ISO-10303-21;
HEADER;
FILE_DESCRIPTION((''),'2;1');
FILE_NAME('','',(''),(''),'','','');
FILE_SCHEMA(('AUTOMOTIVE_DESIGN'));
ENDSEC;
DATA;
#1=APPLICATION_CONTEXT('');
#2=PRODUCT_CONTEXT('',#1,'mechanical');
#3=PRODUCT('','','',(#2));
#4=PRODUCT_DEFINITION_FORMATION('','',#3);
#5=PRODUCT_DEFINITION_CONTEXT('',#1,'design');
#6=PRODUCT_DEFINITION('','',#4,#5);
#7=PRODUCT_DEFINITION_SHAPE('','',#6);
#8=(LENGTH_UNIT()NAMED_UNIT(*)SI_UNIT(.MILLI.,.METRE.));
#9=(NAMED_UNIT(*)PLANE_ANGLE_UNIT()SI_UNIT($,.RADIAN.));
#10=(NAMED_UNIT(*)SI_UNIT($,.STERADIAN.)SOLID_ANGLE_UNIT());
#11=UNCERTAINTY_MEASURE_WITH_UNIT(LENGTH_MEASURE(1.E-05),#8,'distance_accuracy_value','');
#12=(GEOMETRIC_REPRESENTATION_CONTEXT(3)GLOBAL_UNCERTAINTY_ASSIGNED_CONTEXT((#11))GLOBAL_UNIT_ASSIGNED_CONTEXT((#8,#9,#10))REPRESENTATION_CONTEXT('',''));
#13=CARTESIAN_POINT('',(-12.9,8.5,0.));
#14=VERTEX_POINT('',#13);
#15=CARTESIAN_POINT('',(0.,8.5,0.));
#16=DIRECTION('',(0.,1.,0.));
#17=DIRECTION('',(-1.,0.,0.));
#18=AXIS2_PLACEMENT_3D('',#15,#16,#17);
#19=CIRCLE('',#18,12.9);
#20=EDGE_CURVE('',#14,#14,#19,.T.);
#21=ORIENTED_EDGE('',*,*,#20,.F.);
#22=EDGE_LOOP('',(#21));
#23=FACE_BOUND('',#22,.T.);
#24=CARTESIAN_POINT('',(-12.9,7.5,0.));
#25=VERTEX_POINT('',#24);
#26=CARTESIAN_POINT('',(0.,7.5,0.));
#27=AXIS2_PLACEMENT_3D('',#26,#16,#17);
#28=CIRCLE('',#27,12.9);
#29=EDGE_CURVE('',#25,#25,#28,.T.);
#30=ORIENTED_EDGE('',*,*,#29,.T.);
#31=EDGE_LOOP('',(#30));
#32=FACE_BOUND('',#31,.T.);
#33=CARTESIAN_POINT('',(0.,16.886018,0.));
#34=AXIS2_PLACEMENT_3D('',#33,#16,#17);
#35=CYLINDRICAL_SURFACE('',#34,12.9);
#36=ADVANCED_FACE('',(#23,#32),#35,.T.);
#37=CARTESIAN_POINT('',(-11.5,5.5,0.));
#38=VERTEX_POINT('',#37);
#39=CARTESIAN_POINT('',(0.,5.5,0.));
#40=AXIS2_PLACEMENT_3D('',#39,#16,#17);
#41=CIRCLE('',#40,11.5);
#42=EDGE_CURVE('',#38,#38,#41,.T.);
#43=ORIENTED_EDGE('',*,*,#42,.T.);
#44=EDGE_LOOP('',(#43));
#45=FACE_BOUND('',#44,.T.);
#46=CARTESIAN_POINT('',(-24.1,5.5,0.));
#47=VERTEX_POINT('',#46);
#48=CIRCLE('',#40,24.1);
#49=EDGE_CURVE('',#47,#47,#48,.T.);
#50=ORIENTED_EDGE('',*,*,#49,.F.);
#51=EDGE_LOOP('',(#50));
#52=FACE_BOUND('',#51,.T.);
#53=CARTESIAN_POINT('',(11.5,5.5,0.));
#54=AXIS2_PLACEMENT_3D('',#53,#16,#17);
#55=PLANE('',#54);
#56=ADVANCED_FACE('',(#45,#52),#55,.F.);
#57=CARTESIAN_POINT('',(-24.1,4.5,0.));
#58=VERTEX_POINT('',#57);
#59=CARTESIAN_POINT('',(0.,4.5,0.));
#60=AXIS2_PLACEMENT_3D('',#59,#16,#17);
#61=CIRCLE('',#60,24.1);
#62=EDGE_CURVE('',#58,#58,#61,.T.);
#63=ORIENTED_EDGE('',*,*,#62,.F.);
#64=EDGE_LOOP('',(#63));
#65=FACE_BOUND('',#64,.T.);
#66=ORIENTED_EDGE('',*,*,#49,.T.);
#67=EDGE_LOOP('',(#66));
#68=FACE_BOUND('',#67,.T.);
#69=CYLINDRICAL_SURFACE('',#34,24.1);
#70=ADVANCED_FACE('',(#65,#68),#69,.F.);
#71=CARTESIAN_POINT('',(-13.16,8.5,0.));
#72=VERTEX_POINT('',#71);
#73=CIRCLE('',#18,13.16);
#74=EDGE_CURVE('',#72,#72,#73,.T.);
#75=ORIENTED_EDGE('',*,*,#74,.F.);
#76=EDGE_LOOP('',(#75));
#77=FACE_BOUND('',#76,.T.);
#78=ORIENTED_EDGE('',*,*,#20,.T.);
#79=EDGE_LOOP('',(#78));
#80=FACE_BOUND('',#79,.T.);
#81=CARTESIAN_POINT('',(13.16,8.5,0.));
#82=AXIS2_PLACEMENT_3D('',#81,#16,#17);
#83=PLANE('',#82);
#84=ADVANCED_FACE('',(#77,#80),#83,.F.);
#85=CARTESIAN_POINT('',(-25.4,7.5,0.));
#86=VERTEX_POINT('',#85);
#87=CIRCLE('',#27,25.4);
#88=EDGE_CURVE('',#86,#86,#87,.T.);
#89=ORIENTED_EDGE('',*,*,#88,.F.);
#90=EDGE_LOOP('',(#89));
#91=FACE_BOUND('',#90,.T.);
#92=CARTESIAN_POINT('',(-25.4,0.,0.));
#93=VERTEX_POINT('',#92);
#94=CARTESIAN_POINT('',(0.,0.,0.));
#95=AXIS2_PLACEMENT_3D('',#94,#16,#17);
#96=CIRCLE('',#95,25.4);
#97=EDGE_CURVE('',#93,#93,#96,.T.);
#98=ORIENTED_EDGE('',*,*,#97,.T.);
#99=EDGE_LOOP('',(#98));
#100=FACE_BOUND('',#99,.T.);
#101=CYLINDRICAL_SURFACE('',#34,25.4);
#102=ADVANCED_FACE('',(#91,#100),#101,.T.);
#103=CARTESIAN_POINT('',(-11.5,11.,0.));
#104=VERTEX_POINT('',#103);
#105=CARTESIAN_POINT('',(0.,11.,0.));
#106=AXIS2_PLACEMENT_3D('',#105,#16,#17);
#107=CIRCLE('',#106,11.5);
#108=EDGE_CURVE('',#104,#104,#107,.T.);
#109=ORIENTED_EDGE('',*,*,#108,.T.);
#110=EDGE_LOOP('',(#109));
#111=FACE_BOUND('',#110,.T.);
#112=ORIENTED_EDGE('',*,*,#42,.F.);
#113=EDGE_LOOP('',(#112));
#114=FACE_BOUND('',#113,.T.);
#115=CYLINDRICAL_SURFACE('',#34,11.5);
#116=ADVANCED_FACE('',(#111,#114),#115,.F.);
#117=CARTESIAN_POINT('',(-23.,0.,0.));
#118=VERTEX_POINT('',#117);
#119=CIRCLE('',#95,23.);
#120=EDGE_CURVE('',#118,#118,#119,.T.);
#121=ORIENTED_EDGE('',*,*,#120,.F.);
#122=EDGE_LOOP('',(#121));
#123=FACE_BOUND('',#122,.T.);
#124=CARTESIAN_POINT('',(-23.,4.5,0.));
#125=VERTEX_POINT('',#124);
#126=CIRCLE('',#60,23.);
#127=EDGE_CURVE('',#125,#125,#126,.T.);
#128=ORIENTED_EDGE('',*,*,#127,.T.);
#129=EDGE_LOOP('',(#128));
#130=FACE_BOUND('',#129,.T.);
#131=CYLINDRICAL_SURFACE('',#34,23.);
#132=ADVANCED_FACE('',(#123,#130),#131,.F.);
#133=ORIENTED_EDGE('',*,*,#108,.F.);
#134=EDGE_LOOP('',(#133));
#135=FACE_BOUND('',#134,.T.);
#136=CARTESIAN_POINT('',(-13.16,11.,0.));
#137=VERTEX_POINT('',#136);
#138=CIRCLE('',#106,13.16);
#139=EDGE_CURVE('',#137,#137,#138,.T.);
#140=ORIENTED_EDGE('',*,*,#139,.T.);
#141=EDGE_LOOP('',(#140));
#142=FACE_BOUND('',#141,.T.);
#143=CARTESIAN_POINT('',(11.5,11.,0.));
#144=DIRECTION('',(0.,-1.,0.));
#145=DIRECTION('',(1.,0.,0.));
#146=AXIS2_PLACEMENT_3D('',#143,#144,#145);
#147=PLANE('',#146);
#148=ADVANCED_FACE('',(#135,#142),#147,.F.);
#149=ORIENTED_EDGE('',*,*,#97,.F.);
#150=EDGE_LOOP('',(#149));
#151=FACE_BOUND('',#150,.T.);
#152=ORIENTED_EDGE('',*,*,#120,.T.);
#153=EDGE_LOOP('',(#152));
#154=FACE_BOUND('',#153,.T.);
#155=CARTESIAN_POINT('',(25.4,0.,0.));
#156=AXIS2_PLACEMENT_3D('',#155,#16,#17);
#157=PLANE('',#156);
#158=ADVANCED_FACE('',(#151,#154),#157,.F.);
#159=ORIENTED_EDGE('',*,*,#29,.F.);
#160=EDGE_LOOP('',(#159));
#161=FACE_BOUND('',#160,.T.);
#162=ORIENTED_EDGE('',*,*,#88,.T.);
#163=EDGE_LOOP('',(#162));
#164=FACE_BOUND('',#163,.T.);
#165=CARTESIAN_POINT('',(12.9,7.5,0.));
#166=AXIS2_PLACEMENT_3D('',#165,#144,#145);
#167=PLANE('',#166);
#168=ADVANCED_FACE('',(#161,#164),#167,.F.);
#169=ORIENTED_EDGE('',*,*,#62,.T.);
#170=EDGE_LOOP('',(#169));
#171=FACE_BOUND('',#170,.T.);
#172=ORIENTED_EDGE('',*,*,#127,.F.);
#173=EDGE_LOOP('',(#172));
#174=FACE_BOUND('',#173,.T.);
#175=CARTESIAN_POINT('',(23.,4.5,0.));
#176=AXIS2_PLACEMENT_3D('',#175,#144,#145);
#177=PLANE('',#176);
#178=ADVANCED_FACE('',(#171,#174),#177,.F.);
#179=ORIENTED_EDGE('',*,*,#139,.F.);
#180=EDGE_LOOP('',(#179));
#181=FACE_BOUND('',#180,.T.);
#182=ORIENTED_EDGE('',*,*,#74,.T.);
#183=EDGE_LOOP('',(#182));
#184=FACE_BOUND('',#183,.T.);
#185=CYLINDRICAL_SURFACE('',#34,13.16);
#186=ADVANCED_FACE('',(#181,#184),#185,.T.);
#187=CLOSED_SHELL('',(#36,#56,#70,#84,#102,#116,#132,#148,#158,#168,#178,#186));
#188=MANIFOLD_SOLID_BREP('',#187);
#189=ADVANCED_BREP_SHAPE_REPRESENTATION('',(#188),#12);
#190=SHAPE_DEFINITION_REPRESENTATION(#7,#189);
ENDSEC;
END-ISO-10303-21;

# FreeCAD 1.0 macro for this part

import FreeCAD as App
import Part
import Sketcher
from FreeCAD import Vector

doc = App.newDocument("Part")
body = doc.addObject("PartDesign::Body", "Body")

sketch1 = body.newObject("Sketcher::SketchObject", "Sketch")
sketch1.AttachmentSupport = (doc.getObject("XY_Plane"), [""])
sketch1.MapMode = "FlatFace"
sketch1.addGeometry(Part.LineSegment(Vector(23, 4.5, 0), Vector(23, 0, 0)), False)
sketch1.addGeometry(Part.LineSegment(Vector(23, 0, 0), Vector(25.4, 0, 0)), False)
sketch1.addGeometry(Part.LineSegment(Vector(25.4, 0, 0), Vector(25.4, 7.5, 0)), False)
sketch1.addGeometry(Part.LineSegment(Vector(25.4, 7.5, 0), Vector(12.9, 7.5, 0)), False)
sketch1.addGeometry(Part.LineSegment(Vector(12.9, 7.5, 0), Vector(12.9, 8.5, 0)), False)
sketch1.addGeometry(Part.LineSegment(Vector(12.9, 8.5, 0), Vector(13.16, 8.5, 0)), False)
sketch1.addGeometry(Part.LineSegment(Vector(13.16, 8.5, 0), Vector(13.16, 11, 0)), False)
sketch1.addGeometry(Part.LineSegment(Vector(13.16, 11, 0), Vector(11.5, 11, 0)), False)
sketch1.addGeometry(Part.LineSegment(Vector(11.5, 11, 0), Vector(11.5, 5.5, 0)), False)
sketch1.addGeometry(Part.LineSegment(Vector(11.5, 5.5, 0), Vector(24.1, 5.5, 0)), False)
sketch1.addGeometry(Part.LineSegment(Vector(24.1, 5.5, 0), Vector(24.1, 4.5, 0)), False)
sketch1.addGeometry(Part.LineSegment(Vector(24.1, 4.5, 0), Vector(23, 4.5, 0)), False)
sketch1.addConstraint(Sketcher.Constraint("Coincident", 0, 2, 1, 1))
sketch1.addConstraint(Sketcher.Constraint("Coincident", 1, 2, 2, 1))
sketch1.addConstraint(Sketcher.Constraint("Coincident", 2, 2, 3, 1))
sketch1.addConstraint(Sketcher.Constraint("Coincident", 3, 2, 4, 1))
sketch1.addConstraint(Sketcher.Constraint("Coincident", 4, 2, 5, 1))
sketch1.addConstraint(Sketcher.Constraint("Coincident", 5, 2, 6, 1))
sketch1.addConstraint(Sketcher.Constraint("Coincident", 6, 2, 7, 1))
sketch1.addConstraint(Sketcher.Constraint("Coincident", 7, 2, 8, 1))
sketch1.addConstraint(Sketcher.Constraint("Coincident", 8, 2, 9, 1))
sketch1.addConstraint(Sketcher.Constraint("Coincident", 9, 2, 10, 1))
sketch1.addConstraint(Sketcher.Constraint("Coincident", 10, 2, 11, 1))
sketch1.addConstraint(Sketcher.Constraint("Coincident", 11, 2, 0, 1))
sketch1.addConstraint(Sketcher.Constraint("Vertical", 0))
sketch1.addConstraint(Sketcher.Constraint("Horizontal", 1))
sketch1.addConstraint(Sketcher.Constraint("Vertical", 2))
sketch1.addConstraint(Sketcher.Constraint("Horizontal", 3))
sketch1.addConstraint(Sketcher.Constraint("Vertical", 4))
sketch1.addConstraint(Sketcher.Constraint("Horizontal", 5))
sketch1.addConstraint(Sketcher.Constraint("Vertical", 6))
sketch1.addConstraint(Sketcher.Constraint("Horizontal", 7))
sketch1.addConstraint(Sketcher.Constraint("Vertical", 8))
sketch1.addConstraint(Sketcher.Constraint("Horizontal", 9))
sketch1.addConstraint(Sketcher.Constraint("Vertical", 10))
sketch1.addConstraint(Sketcher.Constraint("Horizontal", 11))
sketch1.addConstraint(Sketcher.Constraint("PointOnObject", 0, 2, -1))
sketch1.addConstraint(Sketcher.Constraint("Equal", 4, 10))
sketch1.addConstraint(Sketcher.Constraint("DistanceY", 4, 1, 4, 2, 1.0))
sketch1.addConstraint(Sketcher.Constraint("DistanceX", 1, 1, 1, 2, 2.4))
sketch1.addConstraint(Sketcher.Constraint("DistanceX", 3, 2, 3, 1, 12.5))
sketch1.addConstraint(Sketcher.Constraint("DistanceX", 9, 1, 9, 2, 12.6))
sketch1.addConstraint(Sketcher.Constraint("DistanceX", 11, 2, 11, 1, 1.1))
sketch1.addConstraint(Sketcher.Constraint("DistanceY", 0, 2, 0, 1, 4.5))
sketch1.addConstraint(Sketcher.Constraint("DistanceY", 2, 1, 2, 2, 7.5))
sketch1.addConstraint(Sketcher.Constraint("DistanceY", 6, 1, 6, 2, 2.5))
sketch1.addConstraint(Sketcher.Constraint("DistanceX", -1, 1, 0, 2, 23.0))
sketch1.addConstraint(Sketcher.Constraint("DistanceX", 5, 1, 5, 2, 0.26))
revolution = body.newObject("PartDesign::Revolution", "Revolution")
revolution.Profile = sketch1
revolution.ReferenceAxis = (sketch1, ["V_Axis"])
revolution.Angle = 360

doc.recompute()
